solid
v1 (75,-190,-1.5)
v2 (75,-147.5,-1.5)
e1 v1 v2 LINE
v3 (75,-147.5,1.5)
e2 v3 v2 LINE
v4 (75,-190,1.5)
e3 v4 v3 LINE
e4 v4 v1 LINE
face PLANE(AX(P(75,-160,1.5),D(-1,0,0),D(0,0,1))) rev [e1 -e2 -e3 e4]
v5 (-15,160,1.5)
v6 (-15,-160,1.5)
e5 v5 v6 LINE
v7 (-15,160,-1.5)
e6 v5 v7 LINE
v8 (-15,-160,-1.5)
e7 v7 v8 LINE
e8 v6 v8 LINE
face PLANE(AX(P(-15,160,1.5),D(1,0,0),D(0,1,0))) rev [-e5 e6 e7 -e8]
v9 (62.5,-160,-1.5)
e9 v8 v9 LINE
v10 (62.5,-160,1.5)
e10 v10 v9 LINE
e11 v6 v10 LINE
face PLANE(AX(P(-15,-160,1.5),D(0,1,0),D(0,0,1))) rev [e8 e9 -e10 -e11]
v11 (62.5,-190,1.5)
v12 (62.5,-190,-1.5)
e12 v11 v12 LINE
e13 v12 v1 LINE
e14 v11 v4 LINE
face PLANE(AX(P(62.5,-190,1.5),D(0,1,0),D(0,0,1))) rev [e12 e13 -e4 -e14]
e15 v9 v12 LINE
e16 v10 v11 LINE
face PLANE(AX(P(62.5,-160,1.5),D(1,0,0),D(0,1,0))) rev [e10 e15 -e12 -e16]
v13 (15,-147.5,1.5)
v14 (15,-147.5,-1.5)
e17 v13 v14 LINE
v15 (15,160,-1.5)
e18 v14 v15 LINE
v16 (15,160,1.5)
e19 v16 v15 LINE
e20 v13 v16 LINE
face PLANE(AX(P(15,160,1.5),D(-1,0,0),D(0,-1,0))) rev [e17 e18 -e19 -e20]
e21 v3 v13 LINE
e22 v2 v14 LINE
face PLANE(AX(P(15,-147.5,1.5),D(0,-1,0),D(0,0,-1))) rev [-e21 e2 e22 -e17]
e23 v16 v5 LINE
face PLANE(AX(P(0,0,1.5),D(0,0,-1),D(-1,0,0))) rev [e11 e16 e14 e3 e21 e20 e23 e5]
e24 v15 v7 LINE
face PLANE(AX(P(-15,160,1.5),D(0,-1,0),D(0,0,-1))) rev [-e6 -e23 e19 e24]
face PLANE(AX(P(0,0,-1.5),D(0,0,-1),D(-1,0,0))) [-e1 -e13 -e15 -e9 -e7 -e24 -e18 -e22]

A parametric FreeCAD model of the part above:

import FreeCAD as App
import Part
import Sketcher
from FreeCAD import Vector
Q = App.Units.Quantity


def add_polygon(sketch, points):
    """Adds a closed chain of lines whose ends are joined by coincident constraints."""
    first, n = sketch.GeometryCount, len(points)
    for a, b in zip(points, points[1:] + points[:1]):
        sketch.addGeometry(Part.LineSegment(App.Vector(*a, 0), App.Vector(*b, 0)), False)
    for i in range(n):
        sketch.addConstraint(Sketcher.Constraint("Coincident", first + i, 2, first + (i + 1) % n, 1))

doc = App.newDocument("Part")
body = doc.addObject("PartDesign::Body", "Body")

sketch1 = body.newObject("Sketcher::SketchObject", "Sketch")
sketch1.AttachmentSupport = (doc.getObject("XY_Plane"), [""])
sketch1.MapMode = "FlatFace"
add_polygon(sketch1, [(75, -147.5), (15, -147.5), (15, 160), (-15, 160), (-15, -160), (62.5, -160), (62.5, -190), (75, -190)])
sketch1.addConstraint([
    Sketcher.Constraint("Horizontal", 0),
    Sketcher.Constraint("Vertical", 1),
    Sketcher.Constraint("Horizontal", 2),
    Sketcher.Constraint("Vertical", 3),
    Sketcher.Constraint("Horizontal", 4),
    Sketcher.Constraint("Vertical", 5),
    Sketcher.Constraint("Horizontal", 6),
    Sketcher.Constraint("Vertical", 7),
    Sketcher.Constraint("Symmetric", 1, 2, 3, 2, -1, 1),
    Sketcher.Constraint("Equal", 2, 5),
    Sketcher.Constraint("DistanceX", 0, 2, 0, 1, Q("60 mm")),
    Sketcher.Constraint("DistanceX", 2, 2, 2, 1, Q("30 mm")),
    Sketcher.Constraint("DistanceY", 3, 2, 3, 1, Q("320 mm")),
    Sketcher.Constraint("DistanceX", 4, 1, 4, 2, Q("77.5 mm")),
    Sketcher.Constraint("DistanceY", 1, 1, 1, 2, Q("307.5 mm")),
])
pad1 = body.newObject("PartDesign::Pad", "Pad")
pad1.Profile = sketch1
pad1.Length = 3
pad1.Midplane = True

doc.recompute()
